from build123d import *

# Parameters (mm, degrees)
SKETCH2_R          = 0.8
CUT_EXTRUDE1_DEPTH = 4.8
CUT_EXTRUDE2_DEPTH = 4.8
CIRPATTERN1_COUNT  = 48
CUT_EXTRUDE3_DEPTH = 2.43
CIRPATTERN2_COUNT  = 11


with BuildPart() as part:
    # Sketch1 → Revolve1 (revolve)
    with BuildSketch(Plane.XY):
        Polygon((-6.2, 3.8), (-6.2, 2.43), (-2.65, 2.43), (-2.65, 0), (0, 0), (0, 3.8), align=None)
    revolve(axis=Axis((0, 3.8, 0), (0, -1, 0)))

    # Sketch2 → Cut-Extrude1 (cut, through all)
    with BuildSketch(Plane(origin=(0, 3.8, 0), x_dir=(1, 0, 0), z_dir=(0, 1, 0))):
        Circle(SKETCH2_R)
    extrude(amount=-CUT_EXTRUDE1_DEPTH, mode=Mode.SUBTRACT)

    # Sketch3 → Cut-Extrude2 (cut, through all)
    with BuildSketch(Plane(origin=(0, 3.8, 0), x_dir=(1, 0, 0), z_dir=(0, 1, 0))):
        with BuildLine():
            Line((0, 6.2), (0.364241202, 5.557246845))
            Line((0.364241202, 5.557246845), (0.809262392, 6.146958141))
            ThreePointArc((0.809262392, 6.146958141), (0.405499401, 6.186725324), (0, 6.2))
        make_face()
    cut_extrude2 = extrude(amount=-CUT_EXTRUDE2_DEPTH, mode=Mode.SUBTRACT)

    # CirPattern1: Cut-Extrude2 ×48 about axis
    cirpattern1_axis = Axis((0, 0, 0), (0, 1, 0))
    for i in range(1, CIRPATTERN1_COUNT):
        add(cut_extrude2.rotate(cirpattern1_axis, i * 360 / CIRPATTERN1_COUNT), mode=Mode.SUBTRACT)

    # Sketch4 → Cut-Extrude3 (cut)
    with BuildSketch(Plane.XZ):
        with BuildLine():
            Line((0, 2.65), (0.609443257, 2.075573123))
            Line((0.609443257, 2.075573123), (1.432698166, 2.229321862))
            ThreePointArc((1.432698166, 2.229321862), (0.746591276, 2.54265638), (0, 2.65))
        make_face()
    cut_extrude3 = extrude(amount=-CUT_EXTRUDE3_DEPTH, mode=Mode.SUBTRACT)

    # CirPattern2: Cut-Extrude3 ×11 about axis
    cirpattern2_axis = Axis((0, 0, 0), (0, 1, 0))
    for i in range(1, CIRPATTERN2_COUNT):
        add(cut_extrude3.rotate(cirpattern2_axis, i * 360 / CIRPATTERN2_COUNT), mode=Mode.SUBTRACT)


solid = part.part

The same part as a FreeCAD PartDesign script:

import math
import FreeCAD as App
import Part
import Sketcher
Q = App.Units.Quantity


def add_polygon(sketch, points):
    """Adds a closed chain of lines whose ends are joined by coincident constraints."""
    first, n = sketch.GeometryCount, len(points)
    for a, b in zip(points, points[1:] + points[:1]):
        sketch.addGeometry(Part.LineSegment(App.Vector(*a, 0), App.Vector(*b, 0)), False)
    for i in range(n):
        sketch.addConstraint(Sketcher.Constraint("Coincident", first + i, 2, first + (i + 1) % n, 1))

doc = App.newDocument("Part")
body = doc.addObject("PartDesign::Body", "Body")

sketch1 = doc.addObject("Sketcher::SketchObject", "Sketch")
body.addObject(sketch1)
sketch1.AttachmentSupport = (doc.XY_Plane, [""])
sketch1.MapMode = "FlatFace"
add_polygon(sketch1, [(-6.2, 3.8), (-6.2, 2.4), (-2.6, 2.4), (-2.6, 0), (0, 0), (0, 3.8)])
sketch1.addConstraint(Sketcher.Constraint("Vertical", 0))
sketch1.addConstraint(Sketcher.Constraint("Horizontal", 1))
sketch1.addConstraint(Sketcher.Constraint("Vertical", 2))
sketch1.addConstraint(Sketcher.Constraint("Horizontal", 3))
sketch1.addConstraint(Sketcher.Constraint("Vertical", 4))
sketch1.addConstraint(Sketcher.Constraint("Horizontal", 5))
sketch1.addConstraint(Sketcher.Constraint("Coincident", 3, 2, -1, 1))
sketch1.addConstraint(Sketcher.Constraint("DistanceX", 5, 2, 5, 1, Q("6.2 mm")))
sketch1.addConstraint(Sketcher.Constraint("DistanceY", 4, 1, 4, 2, Q("3.8 mm")))
sketch1.addConstraint(Sketcher.Constraint("DistanceX", 1, 1, 1, 2, Q("3.55 mm")))
sketch1.addConstraint(Sketcher.Constraint("DistanceY", 0, 2, 0, 1, Q("1.37 mm")))
revolution = doc.addObject("PartDesign::Revolution", "Revolution")
body.addObject(revolution)
revolution.Profile = sketch1
revolution.ReferenceAxis = (sketch1, ["V_Axis"])
revolution.Angle = 360

sketch2 = doc.addObject("Sketcher::SketchObject", "Sketch001")
body.addObject(sketch2)
sketch2.AttachmentSupport = (doc.XZ_Plane, [""])
sketch2.MapMode = "FlatFace"
sketch2.AttachmentOffset = App.Placement(App.Vector(0, 0, -3.8), App.Rotation())
sketch2.addGeometry(Part.Circle(App.Vector(0, 0, 0), App.Vector(0, 0, 1), 0.8), False)
sketch2.addConstraint(Sketcher.Constraint("Coincident", 0, 3, -1, 1))
sketch2.addConstraint(Sketcher.Constraint("Diameter", 0, Q("1.6 mm")))
pocket1 = doc.addObject("PartDesign::Pocket", "Pocket")
body.addObject(pocket1)
pocket1.Profile = sketch2
pocket1.Type = "ThroughAll"
pocket1.Reversed = True

sketch3 = doc.addObject("Sketcher::SketchObject", "Sketch002")
body.addObject(sketch3)
sketch3.AttachmentSupport = (doc.XZ_Plane, [""])
sketch3.MapMode = "FlatFace"
sketch3.AttachmentOffset = App.Placement(App.Vector(0, 0, -3.8), App.Rotation())
sketch3.addGeometry(Part.LineSegment(App.Vector(0, -6.2, 0), App.Vector(0.4, -5.6, 0)), False)
sketch3.addGeometry(Part.LineSegment(App.Vector(0.4, -5.6, 0), App.Vector(0.8, -6.1, 0)), False)
sketch3.addGeometry(Part.ArcOfCircle(Part.Circle(App.Vector(0, 0, 0), App.Vector(0, 0, 1), 6.2), math.radians(-90), math.radians(-82.5)), False)
sketch3.addConstraint(Sketcher.Constraint("Coincident", 0, 2, 1, 1))
sketch3.addConstraint(Sketcher.Constraint("Coincident", 1, 2, 2, 2))
sketch3.addConstraint(Sketcher.Constraint("Coincident", 2, 1, 0, 1))
sketch3.addConstraint(Sketcher.Constraint("Coincident", 2, 3, -1, 1))
sketch3.addConstraint(Sketcher.Constraint("PointOnObject", 2, 1, -2))
sketch3.addConstraint(Sketcher.Constraint("Equal", 0, 1))
sketch3.addConstraint(Sketcher.Constraint("Radius", 2, Q("6.2 mm")))
sketch3.addConstraint(Sketcher.Constraint("DistanceX", -1, 1, 0, 2, Q("0.364241 mm")))
sketch3.addConstraint(Sketcher.Constraint("DistanceY", 1, 2, -1, 1, Q("6.146958 mm")))
pocket2 = doc.addObject("PartDesign::Pocket", "Pocket001")
body.addObject(pocket2)
pocket2.Profile = sketch3
pocket2.Type = "ThroughAll"
pocket2.Reversed = True
doc.recompute()

polarpattern = doc.addObject("PartDesign::PolarPattern", "PolarPattern")
body.addObject(polarpattern)
polarpattern.Originals = [pocket2]
polarpattern.Axis = (doc.Y_Axis, [""])
polarpattern.Angle = 360
polarpattern.Occurrences = 48
body.Tip = polarpattern

sketch4 = doc.addObject("Sketcher::SketchObject", "Sketch003")
body.addObject(sketch4)
sketch4.AttachmentSupport = (doc.XZ_Plane, [""])
sketch4.MapMode = "FlatFace"
sketch4.addGeometry(Part.LineSegment(App.Vector(0, 2.6, 0), App.Vector(0.6, 2.1, 0)), False)
sketch4.addGeometry(Part.LineSegment(App.Vector(0.6, 2.1, 0), App.Vector(1.4, 2.2, 0)), False)
sketch4.addGeometry(Part.ArcOfCircle(Part.Circle(App.Vector(0, 0, 0), App.Vector(0, 0, 1), 2.6), math.radians(57), math.radians(90)), False)
sketch4.addConstraint(Sketcher.Constraint("Coincident", 0, 2, 1, 1))
sketch4.addConstraint(Sketcher.Constraint("Coincident", 1, 2, 2, 1))
sketch4.addConstraint(Sketcher.Constraint("Coincident", 2, 2, 0, 1))
sketch4.addConstraint(Sketcher.Constraint("Coincident", 2, 3, -1, 1))
sketch4.addConstraint(Sketcher.Constraint("PointOnObject", 2, 2, -2))
sketch4.addConstraint(Sketcher.Constraint("Equal", 0, 1))
sketch4.addConstraint(Sketcher.Constraint("Radius", 2, Q("2.65 mm")))
sketch4.addConstraint(Sketcher.Constraint("DistanceX", -1, 1, 1, 2, Q("1.432698 mm")))
sketch4.addConstraint(Sketcher.Constraint("Distance", 0, Q("0.837489 mm")))
pocket3 = doc.addObject("PartDesign::Pocket", "Pocket002")
body.addObject(pocket3)
pocket3.Profile = sketch4
pocket3.Length = 2.43
doc.recompute()

polarpattern2 = doc.addObject("PartDesign::PolarPattern", "PolarPattern001")
body.addObject(polarpattern2)
polarpattern2.Originals = [pocket3]
polarpattern2.Axis = (doc.Y_Axis, [""])
polarpattern2.Angle = 360
polarpattern2.Occurrences = 11
body.Tip = polarpattern2

doc.recompute()
